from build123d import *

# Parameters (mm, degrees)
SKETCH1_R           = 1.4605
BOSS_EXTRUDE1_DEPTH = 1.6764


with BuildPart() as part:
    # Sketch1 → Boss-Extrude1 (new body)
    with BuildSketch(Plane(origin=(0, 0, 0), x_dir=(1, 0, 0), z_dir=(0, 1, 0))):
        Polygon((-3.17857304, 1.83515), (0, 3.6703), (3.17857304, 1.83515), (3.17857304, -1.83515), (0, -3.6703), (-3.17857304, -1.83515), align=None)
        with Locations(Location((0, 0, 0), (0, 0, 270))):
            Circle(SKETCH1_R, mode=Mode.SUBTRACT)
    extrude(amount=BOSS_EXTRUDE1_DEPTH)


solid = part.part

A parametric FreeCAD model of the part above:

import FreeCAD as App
import Part
import Sketcher
Q = App.Units.Quantity

doc = App.newDocument("Part")
params = doc.addObject("Spreadsheet::Sheet", "Params")
for row, (alias, value) in enumerate([
    ("sketch1_diameter", "0.115 in"),
    ("pad1_length", "0.066 in"),
], start=1):
    params.set(f"A{row}", alias)
    params.set(f"B{row}", "=" + value)
    params.setAlias(f"B{row}", alias)

body = doc.addObject("PartDesign::Body", "Body")

# Sketch on XZ plane
sketch1 = body.newObject("Sketcher::SketchObject", "Sketch")
sketch1.AttachmentSupport = (doc.getObject("XZ_Plane"), [""])
sketch1.MapMode = "FlatFace"
sketch1.addGeometry(Part.LineSegment(App.Vector(0, -3.6703, 0), App.Vector(-3.178573, -1.83515, 0)), False)
sketch1.addGeometry(Part.LineSegment(App.Vector(-3.178573, -1.83515, 0), App.Vector(-3.178573, 1.83515, 0)), False)
sketch1.addGeometry(Part.LineSegment(App.Vector(-3.178573, 1.83515, 0), App.Vector(0, 3.6703, 0)), False)
sketch1.addGeometry(Part.LineSegment(App.Vector(0, 3.6703, 0), App.Vector(3.178573, 1.83515, 0)), False)
sketch1.addGeometry(Part.LineSegment(App.Vector(3.178573, 1.83515, 0), App.Vector(3.178573, -1.83515, 0)), False)
sketch1.addGeometry(Part.LineSegment(App.Vector(3.178573, -1.83515, 0), App.Vector(0, -3.6703, 0)), False)
sketch1.addGeometry(Part.Circle(App.Vector(0, 0, 0), App.Vector(0, 0, 1), 1.4605), False)
sketch1.addConstraint(Sketcher.Constraint("Coincident", 0, 2, 1, 1))
sketch1.addConstraint(Sketcher.Constraint("Coincident", 1, 2, 2, 1))
sketch1.addConstraint(Sketcher.Constraint("Coincident", 2, 2, 3, 1))
sketch1.addConstraint(Sketcher.Constraint("Coincident", 3, 2, 4, 1))
sketch1.addConstraint(Sketcher.Constraint("Coincident", 4, 2, 5, 1))
sketch1.addConstraint(Sketcher.Constraint("Coincident", 5, 2, 0, 1))
sketch1.addConstraint(Sketcher.Constraint("Vertical", 1))
sketch1.addConstraint(Sketcher.Constraint("Vertical", 4))
sketch1.addConstraint(Sketcher.Constraint("Coincident", 6, 3, -1, 1))
sketch1.addConstraint(Sketcher.Constraint("Symmetric", 0, 2, 3, 2, -1, 1))
sketch1.addConstraint(Sketcher.Constraint("Symmetric", 2, 2, 5, 2, -1, 1))
sketch1.addConstraint(Sketcher.Constraint("PointOnObject", 2, 2, -2))
sketch1.addConstraint(Sketcher.Constraint("Parallel", 2, 5))
sketch1.addConstraint(Sketcher.Constraint("Horizontal", 1, 2, 3, 2))
sketch1.addConstraint(Sketcher.Constraint("Diameter", 6, Q("0.115 in")))
sketch1.addConstraint(Sketcher.Constraint("Angle", 0, Q("150 deg")))
sketch1.addConstraint(Sketcher.Constraint("DistanceY", 1, 1, 1, 2, Q("0.1445 in")))
sketch1.addConstraint(Sketcher.Constraint("Distance", 0, Q("0.1445 in")))
sketch1.setExpression("Constraints[14]", "Params.sketch1_diameter")
pad1 = body.newObject("PartDesign::Pad", "Pad")
pad1.Profile = sketch1
pad1.setExpression("Length", "Params.pad1_length")
pad1.Reversed = True

doc.recompute()
